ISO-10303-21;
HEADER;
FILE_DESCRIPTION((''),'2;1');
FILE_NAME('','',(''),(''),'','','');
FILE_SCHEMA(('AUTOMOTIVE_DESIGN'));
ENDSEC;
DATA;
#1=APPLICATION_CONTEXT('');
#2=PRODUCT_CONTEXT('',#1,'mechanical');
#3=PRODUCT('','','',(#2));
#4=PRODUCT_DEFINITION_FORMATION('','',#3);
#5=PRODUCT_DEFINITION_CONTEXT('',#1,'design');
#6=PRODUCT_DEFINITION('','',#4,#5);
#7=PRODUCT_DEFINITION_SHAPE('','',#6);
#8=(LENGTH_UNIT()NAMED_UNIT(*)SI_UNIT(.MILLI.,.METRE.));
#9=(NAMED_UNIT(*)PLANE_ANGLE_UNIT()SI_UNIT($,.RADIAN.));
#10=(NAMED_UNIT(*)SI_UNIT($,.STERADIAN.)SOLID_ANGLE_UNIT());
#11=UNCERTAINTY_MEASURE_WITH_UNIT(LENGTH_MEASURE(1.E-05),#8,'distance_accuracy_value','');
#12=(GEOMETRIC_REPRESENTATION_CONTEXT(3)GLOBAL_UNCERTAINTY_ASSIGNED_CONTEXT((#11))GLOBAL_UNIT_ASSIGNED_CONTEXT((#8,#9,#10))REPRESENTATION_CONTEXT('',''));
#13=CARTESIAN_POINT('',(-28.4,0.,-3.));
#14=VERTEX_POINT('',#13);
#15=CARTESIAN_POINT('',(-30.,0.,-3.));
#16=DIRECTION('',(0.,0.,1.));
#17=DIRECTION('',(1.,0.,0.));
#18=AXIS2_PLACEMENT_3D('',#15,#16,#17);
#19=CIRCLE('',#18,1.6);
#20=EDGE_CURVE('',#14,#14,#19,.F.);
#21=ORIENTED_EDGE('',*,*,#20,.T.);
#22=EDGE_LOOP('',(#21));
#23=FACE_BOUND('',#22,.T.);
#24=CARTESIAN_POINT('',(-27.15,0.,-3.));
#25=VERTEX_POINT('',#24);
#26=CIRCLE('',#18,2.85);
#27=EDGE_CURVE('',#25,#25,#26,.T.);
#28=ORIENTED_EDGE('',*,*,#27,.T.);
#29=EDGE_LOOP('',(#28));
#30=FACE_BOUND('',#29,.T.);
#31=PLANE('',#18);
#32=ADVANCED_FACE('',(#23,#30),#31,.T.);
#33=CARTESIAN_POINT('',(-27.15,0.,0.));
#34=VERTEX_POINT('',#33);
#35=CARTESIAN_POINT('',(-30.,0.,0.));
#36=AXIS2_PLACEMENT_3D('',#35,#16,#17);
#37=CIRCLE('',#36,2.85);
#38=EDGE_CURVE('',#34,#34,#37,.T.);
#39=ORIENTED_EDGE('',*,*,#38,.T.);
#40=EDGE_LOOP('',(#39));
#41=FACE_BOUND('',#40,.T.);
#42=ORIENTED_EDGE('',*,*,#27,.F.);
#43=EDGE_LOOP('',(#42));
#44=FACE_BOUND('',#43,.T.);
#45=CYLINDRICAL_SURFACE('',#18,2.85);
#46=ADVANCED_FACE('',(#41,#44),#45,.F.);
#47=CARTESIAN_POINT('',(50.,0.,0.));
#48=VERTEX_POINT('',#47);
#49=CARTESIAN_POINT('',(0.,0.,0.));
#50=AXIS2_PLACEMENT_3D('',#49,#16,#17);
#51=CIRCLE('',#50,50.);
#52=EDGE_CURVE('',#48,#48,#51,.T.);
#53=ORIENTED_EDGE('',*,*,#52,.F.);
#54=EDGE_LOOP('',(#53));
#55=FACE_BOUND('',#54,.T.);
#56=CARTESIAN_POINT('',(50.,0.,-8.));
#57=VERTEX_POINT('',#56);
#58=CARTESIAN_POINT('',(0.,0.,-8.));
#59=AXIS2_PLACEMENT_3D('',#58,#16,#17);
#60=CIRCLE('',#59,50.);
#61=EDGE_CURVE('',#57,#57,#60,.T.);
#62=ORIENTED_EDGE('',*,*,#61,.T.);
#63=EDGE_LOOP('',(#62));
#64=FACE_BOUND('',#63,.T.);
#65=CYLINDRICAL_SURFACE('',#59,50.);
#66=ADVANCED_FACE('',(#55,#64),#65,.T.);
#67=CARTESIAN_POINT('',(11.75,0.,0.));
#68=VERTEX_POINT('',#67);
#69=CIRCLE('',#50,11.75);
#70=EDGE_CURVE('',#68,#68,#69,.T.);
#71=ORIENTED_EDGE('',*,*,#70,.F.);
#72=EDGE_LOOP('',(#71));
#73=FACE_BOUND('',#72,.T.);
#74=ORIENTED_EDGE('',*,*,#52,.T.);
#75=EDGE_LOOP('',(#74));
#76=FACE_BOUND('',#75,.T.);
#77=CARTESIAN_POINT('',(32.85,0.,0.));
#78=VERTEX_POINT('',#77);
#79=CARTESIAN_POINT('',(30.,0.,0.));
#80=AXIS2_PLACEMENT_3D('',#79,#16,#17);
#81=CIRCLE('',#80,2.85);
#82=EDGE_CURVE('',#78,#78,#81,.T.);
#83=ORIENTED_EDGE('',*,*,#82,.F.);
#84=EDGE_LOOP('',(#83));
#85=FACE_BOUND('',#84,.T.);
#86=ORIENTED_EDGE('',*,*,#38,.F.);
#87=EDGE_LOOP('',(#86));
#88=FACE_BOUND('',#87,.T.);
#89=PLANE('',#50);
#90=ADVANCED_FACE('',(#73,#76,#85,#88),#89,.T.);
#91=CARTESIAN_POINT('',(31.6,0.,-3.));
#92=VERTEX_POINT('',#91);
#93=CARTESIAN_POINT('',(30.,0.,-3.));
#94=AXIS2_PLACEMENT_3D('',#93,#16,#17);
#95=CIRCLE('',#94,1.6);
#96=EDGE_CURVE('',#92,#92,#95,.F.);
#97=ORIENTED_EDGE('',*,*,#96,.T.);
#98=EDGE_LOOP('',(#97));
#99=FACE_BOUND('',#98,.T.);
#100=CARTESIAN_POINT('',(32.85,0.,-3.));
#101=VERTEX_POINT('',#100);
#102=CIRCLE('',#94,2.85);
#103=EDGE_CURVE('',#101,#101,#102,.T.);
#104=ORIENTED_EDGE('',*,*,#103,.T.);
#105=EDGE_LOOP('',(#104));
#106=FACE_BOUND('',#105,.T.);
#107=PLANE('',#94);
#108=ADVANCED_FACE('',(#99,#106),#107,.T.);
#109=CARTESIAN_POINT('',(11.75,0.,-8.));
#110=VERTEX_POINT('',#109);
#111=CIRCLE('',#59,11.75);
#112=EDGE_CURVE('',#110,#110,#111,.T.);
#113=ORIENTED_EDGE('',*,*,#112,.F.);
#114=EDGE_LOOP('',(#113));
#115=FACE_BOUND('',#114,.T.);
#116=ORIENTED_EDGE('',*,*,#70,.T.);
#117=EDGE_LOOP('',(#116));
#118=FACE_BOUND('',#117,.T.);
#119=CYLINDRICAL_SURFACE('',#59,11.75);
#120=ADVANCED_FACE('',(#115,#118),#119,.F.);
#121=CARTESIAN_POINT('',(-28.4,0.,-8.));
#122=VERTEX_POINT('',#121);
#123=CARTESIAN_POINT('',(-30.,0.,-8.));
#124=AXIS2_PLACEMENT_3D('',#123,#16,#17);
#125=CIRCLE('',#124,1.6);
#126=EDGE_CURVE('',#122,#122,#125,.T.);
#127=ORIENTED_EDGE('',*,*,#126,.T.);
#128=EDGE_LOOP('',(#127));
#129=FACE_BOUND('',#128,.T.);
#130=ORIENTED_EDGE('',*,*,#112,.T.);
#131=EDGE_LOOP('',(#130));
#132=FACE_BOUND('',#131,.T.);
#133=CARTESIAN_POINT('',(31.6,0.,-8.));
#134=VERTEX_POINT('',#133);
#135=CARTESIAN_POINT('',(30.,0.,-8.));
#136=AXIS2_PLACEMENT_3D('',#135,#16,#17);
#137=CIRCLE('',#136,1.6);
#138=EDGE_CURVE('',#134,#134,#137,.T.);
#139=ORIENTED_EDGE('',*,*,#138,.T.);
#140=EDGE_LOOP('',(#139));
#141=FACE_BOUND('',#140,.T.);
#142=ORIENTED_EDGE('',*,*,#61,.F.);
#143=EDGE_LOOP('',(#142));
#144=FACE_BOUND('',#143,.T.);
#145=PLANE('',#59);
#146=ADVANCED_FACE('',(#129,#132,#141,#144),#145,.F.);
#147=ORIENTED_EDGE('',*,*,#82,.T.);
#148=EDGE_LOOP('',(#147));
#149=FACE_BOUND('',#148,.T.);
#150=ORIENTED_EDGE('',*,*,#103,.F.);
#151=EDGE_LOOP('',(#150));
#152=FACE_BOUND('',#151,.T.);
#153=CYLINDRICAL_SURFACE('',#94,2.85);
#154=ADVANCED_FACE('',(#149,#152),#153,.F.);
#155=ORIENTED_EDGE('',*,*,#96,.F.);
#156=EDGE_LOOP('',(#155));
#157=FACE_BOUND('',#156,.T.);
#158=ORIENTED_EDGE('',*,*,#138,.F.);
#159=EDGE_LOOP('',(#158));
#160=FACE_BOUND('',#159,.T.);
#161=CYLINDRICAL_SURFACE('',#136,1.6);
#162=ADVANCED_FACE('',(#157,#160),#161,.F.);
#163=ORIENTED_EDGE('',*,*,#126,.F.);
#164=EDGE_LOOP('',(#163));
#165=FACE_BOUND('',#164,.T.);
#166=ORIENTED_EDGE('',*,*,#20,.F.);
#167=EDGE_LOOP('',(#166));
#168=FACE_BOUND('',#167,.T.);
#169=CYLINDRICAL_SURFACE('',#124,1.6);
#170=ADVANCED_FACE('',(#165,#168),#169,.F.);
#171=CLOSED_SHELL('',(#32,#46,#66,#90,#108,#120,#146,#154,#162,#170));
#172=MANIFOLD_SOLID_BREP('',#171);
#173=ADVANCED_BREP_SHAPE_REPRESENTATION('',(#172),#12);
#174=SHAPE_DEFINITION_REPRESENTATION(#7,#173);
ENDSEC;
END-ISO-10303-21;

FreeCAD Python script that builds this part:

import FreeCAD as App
import Part
import Sketcher

doc = App.newDocument("Part")
body = doc.addObject("PartDesign::Body", "Body")

# Sketch on XY plane
sketch1 = body.newObject("Sketcher::SketchObject", "Sketch")
sketch1.AttachmentSupport = (doc.getObject("XY_Plane"), [""])
sketch1.MapMode = "FlatFace"
sketch1.addGeometry(Part.Circle(App.Vector(0, 0, 0), App.Vector(0, 0, 1), 50), False)
sketch1.addGeometry(Part.Circle(App.Vector(0, 0, 0), App.Vector(0, 0, 1), 12), False)
sketch1.addConstraint(Sketcher.Constraint("Coincident", 0, 3, -1, 1))
sketch1.addConstraint(Sketcher.Constraint("Coincident", 1, 3, -1, 1))
sketch1.addConstraint(Sketcher.Constraint("Diameter", 0, 100.0))
sketch1.addConstraint(Sketcher.Constraint("Diameter", 1, 23.5))
pad1 = body.newObject("PartDesign::Pad", "Pad")
pad1.Profile = sketch1
pad1.Length = 8
pad1.Reversed = True

# Sketch on XY plane
sketch2 = body.newObject("Sketcher::SketchObject", "Sketch001")
sketch2.AttachmentSupport = (doc.getObject("XY_Plane"), [""])
sketch2.MapMode = "FlatFace"
sketch2.addGeometry(Part.Circle(App.Vector(30, 0, 0), App.Vector(0, 0, 1), 1.6), False)
sketch2.addGeometry(Part.Circle(App.Vector(-30, 0, 0), App.Vector(0, 0, 1), 1.6), False)
sketch2.addConstraint(Sketcher.Constraint("Equal", 0, 1))
sketch2.addConstraint(Sketcher.Constraint("Symmetric", 0, 3, 1, 3, -1, 1))
sketch2.addConstraint(Sketcher.Constraint("PointOnObject", 0, 3, -1))
sketch2.addConstraint(Sketcher.Constraint("Diameter", 0, 3.2))
sketch2.addConstraint(Sketcher.Constraint("DistanceX", -1, 1, 0, 3, 30.0))
pocket1 = body.newObject("PartDesign::Pocket", "Pocket")
pocket1.Profile = sketch2
pocket1.Type = "ThroughAll"

# Sketch on XY plane
sketch3 = body.newObject("Sketcher::SketchObject", "Sketch002")
sketch3.AttachmentSupport = (doc.getObject("XY_Plane"), [""])
sketch3.MapMode = "FlatFace"
sketch3.addGeometry(Part.Circle(App.Vector(30, 0, 0), App.Vector(0, 0, 1), 2.9), False)
sketch3.addGeometry(Part.Circle(App.Vector(-30, 0, 0), App.Vector(0, 0, 1), 2.9), False)
sketch3.addConstraint(Sketcher.Constraint("Equal", 0, 1))
sketch3.addConstraint(Sketcher.Constraint("Symmetric", 0, 3, 1, 3, -1, 1))
sketch3.addConstraint(Sketcher.Constraint("PointOnObject", 0, 3, -1))
sketch3.addConstraint(Sketcher.Constraint("Diameter", 0, 5.7))
sketch3.addConstraint(Sketcher.Constraint("DistanceX", -1, 1, 0, 3, 30.0))
pocket2 = body.newObject("PartDesign::Pocket", "Pocket001")
pocket2.Profile = sketch3
pocket2.Length = 3

doc.recompute()
